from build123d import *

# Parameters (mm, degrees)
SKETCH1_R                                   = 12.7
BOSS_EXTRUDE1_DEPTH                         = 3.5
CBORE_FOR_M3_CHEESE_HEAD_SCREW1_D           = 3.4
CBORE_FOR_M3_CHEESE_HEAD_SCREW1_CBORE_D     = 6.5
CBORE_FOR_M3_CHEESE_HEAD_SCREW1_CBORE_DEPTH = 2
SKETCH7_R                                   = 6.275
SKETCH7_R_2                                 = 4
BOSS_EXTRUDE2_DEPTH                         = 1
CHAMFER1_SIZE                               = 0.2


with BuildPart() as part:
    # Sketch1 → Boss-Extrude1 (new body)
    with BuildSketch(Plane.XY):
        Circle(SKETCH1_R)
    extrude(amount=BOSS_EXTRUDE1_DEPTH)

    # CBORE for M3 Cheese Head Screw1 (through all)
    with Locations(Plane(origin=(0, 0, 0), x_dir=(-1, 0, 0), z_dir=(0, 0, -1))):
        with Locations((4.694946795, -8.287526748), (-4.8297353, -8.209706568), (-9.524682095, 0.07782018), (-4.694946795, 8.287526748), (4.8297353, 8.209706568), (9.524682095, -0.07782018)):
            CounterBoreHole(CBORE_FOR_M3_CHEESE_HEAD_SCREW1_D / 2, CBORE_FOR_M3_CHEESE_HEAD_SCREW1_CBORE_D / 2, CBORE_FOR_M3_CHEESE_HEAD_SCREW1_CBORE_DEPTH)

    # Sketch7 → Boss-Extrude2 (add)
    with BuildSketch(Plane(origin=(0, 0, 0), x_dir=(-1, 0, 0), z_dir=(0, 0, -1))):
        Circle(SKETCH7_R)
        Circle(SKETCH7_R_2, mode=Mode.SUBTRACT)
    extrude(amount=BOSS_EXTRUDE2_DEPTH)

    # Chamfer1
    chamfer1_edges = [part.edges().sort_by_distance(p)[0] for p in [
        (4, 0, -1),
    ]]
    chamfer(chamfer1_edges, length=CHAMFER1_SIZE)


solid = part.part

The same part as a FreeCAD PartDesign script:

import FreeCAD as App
import Part
import Sketcher

V = App.Vector


def edges_at(feature, points):
    """Names of the edges that pass closest to the given points."""
    edges = feature.Shape.Edges
    near = lambda p: min(range(len(edges)), key=lambda i: edges[i].distToShape(Part.Vertex(*p))[0])
    return sorted({f"Edge{near(p) + 1}" for p in points})

doc = App.newDocument("Part")
body = doc.addObject("PartDesign::Body", "Body")

sketch1 = body.newObject("Sketcher::SketchObject", "Sketch")
sketch1.AttachmentSupport = (doc.getObject("XY_Plane"), [""])
sketch1.MapMode = "FlatFace"
sketch1.addGeometry(Part.Circle(V(0, 0, 0), V(0, 0, 1), 12.7), False)
sketch1.addConstraint(Sketcher.Constraint("Coincident", 0, 3, -1, 1))
sketch1.addConstraint(Sketcher.Constraint("Diameter", 0, 25.4))
pad1 = body.newObject("PartDesign::Pad", "Pad")
pad1.Profile = sketch1
pad1.Length = 3.5

sketch2 = body.newObject("Sketcher::SketchObject", "Sketch001")
sketch2.AttachmentSupport = (doc.getObject("XY_Plane"), [""])
sketch2.MapMode = "FlatFace"
sketch2.addGeometry(Part.Circle(V(-4.694947, -8.287527, 0), V(0, 0, 1), 1.7), False)
sketch2.addGeometry(Part.Circle(V(4.829735, -8.209707, 0), V(0, 0, 1), 1.7), False)
sketch2.addGeometry(Part.Circle(V(9.524682, 0.07782, 0), V(0, 0, 1), 1.7), False)
sketch2.addGeometry(Part.Circle(V(4.694947, 8.287527, 0), V(0, 0, 1), 1.7), False)
sketch2.addGeometry(Part.Circle(V(-4.829735, 8.209707, 0), V(0, 0, 1), 1.7), False)
sketch2.addGeometry(Part.Circle(V(-9.524682, -0.07782, 0), V(0, 0, 1), 1.7), False)
sketch2.addConstraint(Sketcher.Constraint("Equal", 0, 1))
sketch2.addConstraint(Sketcher.Constraint("Equal", 1, 2))
sketch2.addConstraint(Sketcher.Constraint("Equal", 2, 3))
sketch2.addConstraint(Sketcher.Constraint("Equal", 3, 4))
sketch2.addConstraint(Sketcher.Constraint("Equal", 4, 5))
sketch2.addConstraint(Sketcher.Constraint("Symmetric", 0, 3, 3, 3, -1, 1))
sketch2.addConstraint(Sketcher.Constraint("Symmetric", 1, 3, 4, 3, -1, 1))
sketch2.addConstraint(Sketcher.Constraint("Symmetric", 2, 3, 5, 3, -1, 1))
sketch2.addConstraint(Sketcher.Constraint("Diameter", 0, 3.4))
sketch2.addConstraint(Sketcher.Constraint("DistanceY", -1, 1, 2, 3, 0.07782))
sketch2.addConstraint(Sketcher.Constraint("DistanceY", 0, 3, 1, 3, 0.07782))
sketch2.addConstraint(Sketcher.Constraint("DistanceX", 0, 3, 2, 3, 14.219629))
sketch2.addConstraint(Sketcher.Constraint("DistanceX", 3, 3, 1, 3, 0.134789))
sketch2.addConstraint(Sketcher.Constraint("DistanceX", 4, 3, 1, 3, 9.659471))
sketch2.addConstraint(Sketcher.Constraint("DistanceY", 0, 3, -1, 1, 8.287527))
doc.recompute()
hole = body.newObject("PartDesign::Hole", "Hole")
hole.Profile = sketch2
hole.ThreadType = "None"
hole.Diameter = 3.4
hole.DepthType = "ThroughAll"
hole.HoleCutType = "Counterbore"
hole.HoleCutDiameter = 6.5
hole.HoleCutDepth = 2
hole.Reversed = True

sketch3 = body.newObject("Sketcher::SketchObject", "Sketch002")
sketch3.AttachmentSupport = (doc.getObject("XY_Plane"), [""])
sketch3.MapMode = "FlatFace"
sketch3.addGeometry(Part.Circle(V(0, 0, 0), V(0, 0, 1), 6.275), False)
sketch3.addGeometry(Part.Circle(V(0, 0, 0), V(0, 0, 1), 4), False)
sketch3.addConstraint(Sketcher.Constraint("Coincident", 0, 3, -1, 1))
sketch3.addConstraint(Sketcher.Constraint("Coincident", 1, 3, -1, 1))
sketch3.addConstraint(Sketcher.Constraint("Diameter", 1, 8.0))
sketch3.addConstraint(Sketcher.Constraint("Diameter", 0, 12.55))
pad2 = body.newObject("PartDesign::Pad", "Pad001")
pad2.Profile = sketch3
pad2.Length = 1
pad2.Reversed = True
doc.recompute()

chamfer = body.newObject("PartDesign::Chamfer", "Chamfer")
chamfer.Base = (pad2, edges_at(pad2, [(4, 0, -1)]))
chamfer.Size = 0.2

doc.recompute()
